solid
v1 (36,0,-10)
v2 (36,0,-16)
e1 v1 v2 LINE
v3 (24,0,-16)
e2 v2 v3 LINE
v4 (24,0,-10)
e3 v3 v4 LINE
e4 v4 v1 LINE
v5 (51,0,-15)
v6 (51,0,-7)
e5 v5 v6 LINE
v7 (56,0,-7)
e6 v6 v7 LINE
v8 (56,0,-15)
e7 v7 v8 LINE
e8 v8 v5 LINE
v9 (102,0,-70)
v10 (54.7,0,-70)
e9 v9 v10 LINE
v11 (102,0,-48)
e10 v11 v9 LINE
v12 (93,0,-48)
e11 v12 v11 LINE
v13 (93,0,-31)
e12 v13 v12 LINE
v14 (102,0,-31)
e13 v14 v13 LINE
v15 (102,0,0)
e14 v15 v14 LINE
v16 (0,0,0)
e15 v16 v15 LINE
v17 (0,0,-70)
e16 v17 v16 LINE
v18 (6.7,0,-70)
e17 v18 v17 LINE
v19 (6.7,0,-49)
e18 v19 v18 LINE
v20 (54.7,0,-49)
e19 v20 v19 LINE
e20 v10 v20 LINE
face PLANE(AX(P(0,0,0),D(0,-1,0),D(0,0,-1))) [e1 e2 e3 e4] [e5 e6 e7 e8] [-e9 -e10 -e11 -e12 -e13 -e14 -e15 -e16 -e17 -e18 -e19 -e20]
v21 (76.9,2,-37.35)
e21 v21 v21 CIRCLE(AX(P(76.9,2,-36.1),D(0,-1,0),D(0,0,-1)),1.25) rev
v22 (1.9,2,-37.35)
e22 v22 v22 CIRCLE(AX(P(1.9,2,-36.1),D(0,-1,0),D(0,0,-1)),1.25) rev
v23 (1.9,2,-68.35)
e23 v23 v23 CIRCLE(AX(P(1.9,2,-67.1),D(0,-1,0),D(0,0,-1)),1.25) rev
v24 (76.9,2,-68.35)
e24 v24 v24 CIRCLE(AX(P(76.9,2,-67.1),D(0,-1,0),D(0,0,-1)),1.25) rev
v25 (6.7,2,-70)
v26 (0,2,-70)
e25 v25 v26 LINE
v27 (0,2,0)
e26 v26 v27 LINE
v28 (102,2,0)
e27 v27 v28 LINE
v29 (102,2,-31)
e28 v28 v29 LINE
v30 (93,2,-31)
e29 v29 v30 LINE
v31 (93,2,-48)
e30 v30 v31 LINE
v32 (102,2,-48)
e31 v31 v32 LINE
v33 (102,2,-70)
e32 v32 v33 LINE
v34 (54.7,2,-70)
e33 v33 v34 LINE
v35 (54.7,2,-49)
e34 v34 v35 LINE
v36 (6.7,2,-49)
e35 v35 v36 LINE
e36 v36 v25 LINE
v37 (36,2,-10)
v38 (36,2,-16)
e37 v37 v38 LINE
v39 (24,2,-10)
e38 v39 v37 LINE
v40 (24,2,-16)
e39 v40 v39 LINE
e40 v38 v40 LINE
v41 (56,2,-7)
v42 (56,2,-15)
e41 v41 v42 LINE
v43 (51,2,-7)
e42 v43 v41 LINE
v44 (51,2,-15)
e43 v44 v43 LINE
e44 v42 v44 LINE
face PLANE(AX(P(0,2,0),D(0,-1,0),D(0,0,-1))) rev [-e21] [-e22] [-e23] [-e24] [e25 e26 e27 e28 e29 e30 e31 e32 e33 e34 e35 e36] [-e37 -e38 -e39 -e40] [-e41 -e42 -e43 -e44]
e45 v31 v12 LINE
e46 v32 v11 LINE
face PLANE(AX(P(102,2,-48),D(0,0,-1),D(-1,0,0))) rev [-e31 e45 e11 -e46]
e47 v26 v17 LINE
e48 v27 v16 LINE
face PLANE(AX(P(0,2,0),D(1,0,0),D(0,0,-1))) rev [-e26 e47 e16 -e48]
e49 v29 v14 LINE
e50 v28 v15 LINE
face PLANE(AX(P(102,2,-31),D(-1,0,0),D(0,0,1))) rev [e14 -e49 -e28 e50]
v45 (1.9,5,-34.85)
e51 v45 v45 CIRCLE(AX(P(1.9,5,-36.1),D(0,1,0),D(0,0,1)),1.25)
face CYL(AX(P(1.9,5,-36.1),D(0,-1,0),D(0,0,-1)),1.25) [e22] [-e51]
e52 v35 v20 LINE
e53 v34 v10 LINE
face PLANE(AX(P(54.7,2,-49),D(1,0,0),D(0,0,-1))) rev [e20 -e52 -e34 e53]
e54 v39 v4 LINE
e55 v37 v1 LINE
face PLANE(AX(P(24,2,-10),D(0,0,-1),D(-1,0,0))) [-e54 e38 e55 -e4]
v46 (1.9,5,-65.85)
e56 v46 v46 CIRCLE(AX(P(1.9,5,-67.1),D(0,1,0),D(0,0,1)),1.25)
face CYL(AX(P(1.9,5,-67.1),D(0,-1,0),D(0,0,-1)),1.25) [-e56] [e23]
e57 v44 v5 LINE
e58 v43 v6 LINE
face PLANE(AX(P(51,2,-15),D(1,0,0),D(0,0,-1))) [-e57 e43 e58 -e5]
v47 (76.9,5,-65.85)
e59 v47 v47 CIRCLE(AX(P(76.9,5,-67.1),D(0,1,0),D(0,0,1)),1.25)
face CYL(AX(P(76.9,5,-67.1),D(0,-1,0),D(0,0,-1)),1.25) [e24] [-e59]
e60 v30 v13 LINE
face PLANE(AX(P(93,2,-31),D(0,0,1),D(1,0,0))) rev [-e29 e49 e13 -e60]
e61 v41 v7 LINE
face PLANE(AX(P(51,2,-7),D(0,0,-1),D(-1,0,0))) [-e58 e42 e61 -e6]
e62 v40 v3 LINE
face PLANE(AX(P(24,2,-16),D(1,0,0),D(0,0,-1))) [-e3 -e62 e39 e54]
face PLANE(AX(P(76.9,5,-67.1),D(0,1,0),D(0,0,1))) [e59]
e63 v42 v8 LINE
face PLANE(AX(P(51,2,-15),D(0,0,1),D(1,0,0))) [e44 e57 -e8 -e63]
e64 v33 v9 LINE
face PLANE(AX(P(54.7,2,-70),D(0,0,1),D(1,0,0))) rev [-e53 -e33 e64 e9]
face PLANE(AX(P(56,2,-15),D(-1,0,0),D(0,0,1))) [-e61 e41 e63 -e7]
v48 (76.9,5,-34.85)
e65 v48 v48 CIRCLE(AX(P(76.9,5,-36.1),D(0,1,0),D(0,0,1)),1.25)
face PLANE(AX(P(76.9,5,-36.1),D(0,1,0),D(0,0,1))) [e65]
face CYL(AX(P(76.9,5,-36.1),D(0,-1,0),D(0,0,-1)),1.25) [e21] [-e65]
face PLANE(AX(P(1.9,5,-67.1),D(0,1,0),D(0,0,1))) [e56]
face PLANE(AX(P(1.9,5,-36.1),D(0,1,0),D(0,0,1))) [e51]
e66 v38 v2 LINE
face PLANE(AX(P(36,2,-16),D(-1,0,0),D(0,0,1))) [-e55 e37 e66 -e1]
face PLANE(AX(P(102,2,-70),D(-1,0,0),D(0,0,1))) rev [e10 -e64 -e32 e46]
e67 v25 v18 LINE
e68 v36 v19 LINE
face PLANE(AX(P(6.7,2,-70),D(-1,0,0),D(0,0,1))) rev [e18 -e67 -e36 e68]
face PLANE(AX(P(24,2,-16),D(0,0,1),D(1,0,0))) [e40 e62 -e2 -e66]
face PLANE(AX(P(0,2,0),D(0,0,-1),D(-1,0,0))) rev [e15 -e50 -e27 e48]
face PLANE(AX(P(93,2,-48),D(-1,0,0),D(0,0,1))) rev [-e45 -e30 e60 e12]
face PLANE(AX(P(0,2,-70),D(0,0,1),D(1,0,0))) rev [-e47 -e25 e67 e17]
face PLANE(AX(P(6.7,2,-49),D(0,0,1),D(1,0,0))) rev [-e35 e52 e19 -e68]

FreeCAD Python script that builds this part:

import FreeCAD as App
import Part
import Sketcher
from FreeCAD import Vector

doc = App.newDocument("Part")
params = doc.addObject("Spreadsheet::Sheet", "Params")
for row, (alias, value) in enumerate([
    ("sketch1_width", "102 mm"),
    ("sketch1_width2", "9 mm"),
    ("sketch1_width3", "48 mm"),
    ("sketch1_width4", "5 mm"),
    ("sketch1_width5", "12 mm"),
    ("pad1_length", "2 mm"),
    ("sketch2_diameter", "2.5 mm"),
    ("pad2_length", "3 mm"),
], start=1):
    params.set(f"A{row}", alias)
    params.set(f"B{row}", "=" + value)
    params.setAlias(f"B{row}", alias)

body = doc.addObject("PartDesign::Body", "Body")

# Sketch on XZ plane
sketch1 = doc.addObject("Sketcher::SketchObject", "Sketch")
body.addObject(sketch1)
sketch1.AttachmentSupport = (doc.XZ_Plane, [""])
sketch1.MapMode = "FlatFace"
sketch1.addGeometry([
    Part.LineSegment(Vector(7, -70, 0), Vector(0, -70, 0)),  # 0
    Part.LineSegment(Vector(0, -70, 0), Vector(0, 0, 0)),  # 1
    Part.LineSegment(Vector(0, 0, 0), Vector(102, 0, 0)),  # 2
    Part.LineSegment(Vector(102, 0, 0), Vector(102, -31, 0)),  # 3
    Part.LineSegment(Vector(102, -31, 0), Vector(93, -31, 0)),  # 4
    Part.LineSegment(Vector(93, -31, 0), Vector(93, -48, 0)),  # 5
    Part.LineSegment(Vector(93, -48, 0), Vector(102, -48, 0)),  # 6
    Part.LineSegment(Vector(102, -48, 0), Vector(102, -70, 0)),  # 7
    Part.LineSegment(Vector(102, -70, 0), Vector(55, -70, 0)),  # 8
    Part.LineSegment(Vector(55, -70, 0), Vector(55, -49, 0)),  # 9
    Part.LineSegment(Vector(55, -49, 0), Vector(7, -49, 0)),  # 10
    Part.LineSegment(Vector(7, -49, 0), Vector(7, -70, 0)),  # 11
    Part.LineSegment(Vector(51, -7, 0), Vector(51, -15, 0)),  # 12
    Part.LineSegment(Vector(51, -15, 0), Vector(56, -15, 0)),  # 13
    Part.LineSegment(Vector(56, -15, 0), Vector(56, -7, 0)),  # 14
    Part.LineSegment(Vector(56, -7, 0), Vector(51, -7, 0)),  # 15
    Part.LineSegment(Vector(24, -10, 0), Vector(24, -16, 0)),  # 16
    Part.LineSegment(Vector(24, -16, 0), Vector(36, -16, 0)),  # 17
    Part.LineSegment(Vector(36, -16, 0), Vector(36, -10, 0)),  # 18
    Part.LineSegment(Vector(36, -10, 0), Vector(24, -10, 0)),  # 19
], False)
sketch1.addConstraint([
    Sketcher.Constraint("Coincident", 0, 2, 1, 1),
    Sketcher.Constraint("Coincident", 1, 2, 2, 1),
    Sketcher.Constraint("Coincident", 2, 2, 3, 1),
    Sketcher.Constraint("Coincident", 3, 2, 4, 1),
    Sketcher.Constraint("Coincident", 4, 2, 5, 1),
    Sketcher.Constraint("Coincident", 5, 2, 6, 1),
    Sketcher.Constraint("Coincident", 6, 2, 7, 1),
    Sketcher.Constraint("Coincident", 7, 2, 8, 1),
    Sketcher.Constraint("Coincident", 8, 2, 9, 1),
    Sketcher.Constraint("Coincident", 9, 2, 10, 1),
    Sketcher.Constraint("Coincident", 10, 2, 11, 1),
    Sketcher.Constraint("Coincident", 11, 2, 0, 1),
    Sketcher.Constraint("Coincident", 12, 2, 13, 1),
    Sketcher.Constraint("Coincident", 13, 2, 14, 1),
    Sketcher.Constraint("Coincident", 14, 2, 15, 1),
    Sketcher.Constraint("Coincident", 15, 2, 12, 1),
    Sketcher.Constraint("Coincident", 16, 2, 17, 1),
    Sketcher.Constraint("Coincident", 17, 2, 18, 1),
    Sketcher.Constraint("Coincident", 18, 2, 19, 1),
    Sketcher.Constraint("Coincident", 19, 2, 16, 1),
    Sketcher.Constraint("Horizontal", 0),
    Sketcher.Constraint("Vertical", 1),
    Sketcher.Constraint("Horizontal", 2),
    Sketcher.Constraint("Vertical", 3),
    Sketcher.Constraint("Horizontal", 4),
    Sketcher.Constraint("Vertical", 5),
    Sketcher.Constraint("Horizontal", 6),
    Sketcher.Constraint("Vertical", 7),
    Sketcher.Constraint("Horizontal", 8),
    Sketcher.Constraint("Vertical", 9),
    Sketcher.Constraint("Horizontal", 10),
    Sketcher.Constraint("Vertical", 11),
    Sketcher.Constraint("Vertical", 12),
    Sketcher.Constraint("Horizontal", 13),
    Sketcher.Constraint("Vertical", 14),
    Sketcher.Constraint("Horizontal", 15),
    Sketcher.Constraint("Vertical", 16),
    Sketcher.Constraint("Horizontal", 17),
    Sketcher.Constraint("Vertical", 18),
    Sketcher.Constraint("Horizontal", 19),
    Sketcher.Constraint("Coincident", 1, 2, -1, 1),
    Sketcher.Constraint("Horizontal", 0, 2, 7, 2),
    Sketcher.Constraint("Vertical", 3, 2, 6, 2),
    Sketcher.Constraint("DistanceX", 2, 1, 2, 2, 102.0),
    Sketcher.Constraint("DistanceX", 4, 2, 4, 1, 9.0),
    Sketcher.Constraint("DistanceX", 10, 2, 10, 1, 48.0),
    Sketcher.Constraint("DistanceX", 13, 1, 13, 2, 5.0),
    Sketcher.Constraint("DistanceX", 17, 1, 17, 2, 12.0),
    Sketcher.Constraint("DistanceY", 1, 1, 1, 2, 70.0),
    Sketcher.Constraint("DistanceY", 3, 2, 3, 1, 31.0),
    Sketcher.Constraint("DistanceY", 5, 2, 5, 1, 17.0),
    Sketcher.Constraint("DistanceY", 9, 1, 9, 2, 21.0),
    Sketcher.Constraint("DistanceY", 12, 2, 12, 1, 8.0),
    Sketcher.Constraint("DistanceY", 16, 2, 16, 1, 6.0),
    Sketcher.Constraint("DistanceX", 0, 2, 0, 1, 6.7),
    Sketcher.Constraint("DistanceX", -1, 1, 12, 2, 51.0),
    Sketcher.Constraint("DistanceY", 12, 2, -1, 1, 15.0),
    Sketcher.Constraint("DistanceX", -1, 1, 16, 2, 24.0),
    Sketcher.Constraint("DistanceY", 16, 2, -1, 1, 16.0),
])
sketch1.setExpression("Constraints[43]", "Params.sketch1_width")
sketch1.setExpression("Constraints[44]", "Params.sketch1_width2")
sketch1.setExpression("Constraints[45]", "Params.sketch1_width3")
sketch1.setExpression("Constraints[46]", "Params.sketch1_width4")
sketch1.setExpression("Constraints[47]", "Params.sketch1_width5")
pad1 = doc.addObject("PartDesign::Pad", "Pad")
body.addObject(pad1)
pad1.Profile = sketch1
pad1.setExpression("Length", "Params.pad1_length")
pad1.Reversed = True

# Sketch on XZ plane
sketch2 = doc.addObject("Sketcher::SketchObject", "Sketch001")
body.addObject(sketch2)
sketch2.AttachmentSupport = (doc.XZ_Plane, [""])
sketch2.MapMode = "FlatFace"
sketch2.AttachmentOffset = App.Placement(Vector(0, 0, -2), App.Rotation())
sketch2.addGeometry([
    Part.Circle(Vector(1.9, -67.1, 0), Vector(0, 0, 1), 1.2),
    Part.Circle(Vector(1.9, -36.1, 0), Vector(0, 0, 1), 1.2),
    Part.Circle(Vector(76.9, -36.1, 0), Vector(0, 0, 1), 1.2),
    Part.Circle(Vector(76.9, -67.1, 0), Vector(0, 0, 1), 1.2),
], False)
sketch2.addConstraint([
    Sketcher.Constraint("Equal", 0, 1),
    Sketcher.Constraint("Equal", 1, 2),
    Sketcher.Constraint("Equal", 2, 3),
    Sketcher.Constraint("Horizontal", 1, 3, 2, 3),
    Sketcher.Constraint("Horizontal", 0, 3, 3, 3),
    Sketcher.Constraint("Vertical", 0, 3, 1, 3),
    Sketcher.Constraint("Vertical", 2, 3, 3, 3),
    Sketcher.Constraint("Diameter", 0, 2.5),
    Sketcher.Constraint("DistanceY", 0, 3, 1, 3, 31.0),
    Sketcher.Constraint("DistanceX", 1, 3, 2, 3, 75.0),
    Sketcher.Constraint("DistanceX", -1, 1, 0, 3, 1.9),
    Sketcher.Constraint("DistanceY", 0, 3, -1, 1, 67.1),
])
sketch2.setExpression("Constraints[7]", "Params.sketch2_diameter")
pad2 = doc.addObject("PartDesign::Pad", "Pad001")
body.addObject(pad2)
pad2.Profile = sketch2
pad2.setExpression("Length", "Params.pad2_length")
pad2.Reversed = True

doc.recompute()
